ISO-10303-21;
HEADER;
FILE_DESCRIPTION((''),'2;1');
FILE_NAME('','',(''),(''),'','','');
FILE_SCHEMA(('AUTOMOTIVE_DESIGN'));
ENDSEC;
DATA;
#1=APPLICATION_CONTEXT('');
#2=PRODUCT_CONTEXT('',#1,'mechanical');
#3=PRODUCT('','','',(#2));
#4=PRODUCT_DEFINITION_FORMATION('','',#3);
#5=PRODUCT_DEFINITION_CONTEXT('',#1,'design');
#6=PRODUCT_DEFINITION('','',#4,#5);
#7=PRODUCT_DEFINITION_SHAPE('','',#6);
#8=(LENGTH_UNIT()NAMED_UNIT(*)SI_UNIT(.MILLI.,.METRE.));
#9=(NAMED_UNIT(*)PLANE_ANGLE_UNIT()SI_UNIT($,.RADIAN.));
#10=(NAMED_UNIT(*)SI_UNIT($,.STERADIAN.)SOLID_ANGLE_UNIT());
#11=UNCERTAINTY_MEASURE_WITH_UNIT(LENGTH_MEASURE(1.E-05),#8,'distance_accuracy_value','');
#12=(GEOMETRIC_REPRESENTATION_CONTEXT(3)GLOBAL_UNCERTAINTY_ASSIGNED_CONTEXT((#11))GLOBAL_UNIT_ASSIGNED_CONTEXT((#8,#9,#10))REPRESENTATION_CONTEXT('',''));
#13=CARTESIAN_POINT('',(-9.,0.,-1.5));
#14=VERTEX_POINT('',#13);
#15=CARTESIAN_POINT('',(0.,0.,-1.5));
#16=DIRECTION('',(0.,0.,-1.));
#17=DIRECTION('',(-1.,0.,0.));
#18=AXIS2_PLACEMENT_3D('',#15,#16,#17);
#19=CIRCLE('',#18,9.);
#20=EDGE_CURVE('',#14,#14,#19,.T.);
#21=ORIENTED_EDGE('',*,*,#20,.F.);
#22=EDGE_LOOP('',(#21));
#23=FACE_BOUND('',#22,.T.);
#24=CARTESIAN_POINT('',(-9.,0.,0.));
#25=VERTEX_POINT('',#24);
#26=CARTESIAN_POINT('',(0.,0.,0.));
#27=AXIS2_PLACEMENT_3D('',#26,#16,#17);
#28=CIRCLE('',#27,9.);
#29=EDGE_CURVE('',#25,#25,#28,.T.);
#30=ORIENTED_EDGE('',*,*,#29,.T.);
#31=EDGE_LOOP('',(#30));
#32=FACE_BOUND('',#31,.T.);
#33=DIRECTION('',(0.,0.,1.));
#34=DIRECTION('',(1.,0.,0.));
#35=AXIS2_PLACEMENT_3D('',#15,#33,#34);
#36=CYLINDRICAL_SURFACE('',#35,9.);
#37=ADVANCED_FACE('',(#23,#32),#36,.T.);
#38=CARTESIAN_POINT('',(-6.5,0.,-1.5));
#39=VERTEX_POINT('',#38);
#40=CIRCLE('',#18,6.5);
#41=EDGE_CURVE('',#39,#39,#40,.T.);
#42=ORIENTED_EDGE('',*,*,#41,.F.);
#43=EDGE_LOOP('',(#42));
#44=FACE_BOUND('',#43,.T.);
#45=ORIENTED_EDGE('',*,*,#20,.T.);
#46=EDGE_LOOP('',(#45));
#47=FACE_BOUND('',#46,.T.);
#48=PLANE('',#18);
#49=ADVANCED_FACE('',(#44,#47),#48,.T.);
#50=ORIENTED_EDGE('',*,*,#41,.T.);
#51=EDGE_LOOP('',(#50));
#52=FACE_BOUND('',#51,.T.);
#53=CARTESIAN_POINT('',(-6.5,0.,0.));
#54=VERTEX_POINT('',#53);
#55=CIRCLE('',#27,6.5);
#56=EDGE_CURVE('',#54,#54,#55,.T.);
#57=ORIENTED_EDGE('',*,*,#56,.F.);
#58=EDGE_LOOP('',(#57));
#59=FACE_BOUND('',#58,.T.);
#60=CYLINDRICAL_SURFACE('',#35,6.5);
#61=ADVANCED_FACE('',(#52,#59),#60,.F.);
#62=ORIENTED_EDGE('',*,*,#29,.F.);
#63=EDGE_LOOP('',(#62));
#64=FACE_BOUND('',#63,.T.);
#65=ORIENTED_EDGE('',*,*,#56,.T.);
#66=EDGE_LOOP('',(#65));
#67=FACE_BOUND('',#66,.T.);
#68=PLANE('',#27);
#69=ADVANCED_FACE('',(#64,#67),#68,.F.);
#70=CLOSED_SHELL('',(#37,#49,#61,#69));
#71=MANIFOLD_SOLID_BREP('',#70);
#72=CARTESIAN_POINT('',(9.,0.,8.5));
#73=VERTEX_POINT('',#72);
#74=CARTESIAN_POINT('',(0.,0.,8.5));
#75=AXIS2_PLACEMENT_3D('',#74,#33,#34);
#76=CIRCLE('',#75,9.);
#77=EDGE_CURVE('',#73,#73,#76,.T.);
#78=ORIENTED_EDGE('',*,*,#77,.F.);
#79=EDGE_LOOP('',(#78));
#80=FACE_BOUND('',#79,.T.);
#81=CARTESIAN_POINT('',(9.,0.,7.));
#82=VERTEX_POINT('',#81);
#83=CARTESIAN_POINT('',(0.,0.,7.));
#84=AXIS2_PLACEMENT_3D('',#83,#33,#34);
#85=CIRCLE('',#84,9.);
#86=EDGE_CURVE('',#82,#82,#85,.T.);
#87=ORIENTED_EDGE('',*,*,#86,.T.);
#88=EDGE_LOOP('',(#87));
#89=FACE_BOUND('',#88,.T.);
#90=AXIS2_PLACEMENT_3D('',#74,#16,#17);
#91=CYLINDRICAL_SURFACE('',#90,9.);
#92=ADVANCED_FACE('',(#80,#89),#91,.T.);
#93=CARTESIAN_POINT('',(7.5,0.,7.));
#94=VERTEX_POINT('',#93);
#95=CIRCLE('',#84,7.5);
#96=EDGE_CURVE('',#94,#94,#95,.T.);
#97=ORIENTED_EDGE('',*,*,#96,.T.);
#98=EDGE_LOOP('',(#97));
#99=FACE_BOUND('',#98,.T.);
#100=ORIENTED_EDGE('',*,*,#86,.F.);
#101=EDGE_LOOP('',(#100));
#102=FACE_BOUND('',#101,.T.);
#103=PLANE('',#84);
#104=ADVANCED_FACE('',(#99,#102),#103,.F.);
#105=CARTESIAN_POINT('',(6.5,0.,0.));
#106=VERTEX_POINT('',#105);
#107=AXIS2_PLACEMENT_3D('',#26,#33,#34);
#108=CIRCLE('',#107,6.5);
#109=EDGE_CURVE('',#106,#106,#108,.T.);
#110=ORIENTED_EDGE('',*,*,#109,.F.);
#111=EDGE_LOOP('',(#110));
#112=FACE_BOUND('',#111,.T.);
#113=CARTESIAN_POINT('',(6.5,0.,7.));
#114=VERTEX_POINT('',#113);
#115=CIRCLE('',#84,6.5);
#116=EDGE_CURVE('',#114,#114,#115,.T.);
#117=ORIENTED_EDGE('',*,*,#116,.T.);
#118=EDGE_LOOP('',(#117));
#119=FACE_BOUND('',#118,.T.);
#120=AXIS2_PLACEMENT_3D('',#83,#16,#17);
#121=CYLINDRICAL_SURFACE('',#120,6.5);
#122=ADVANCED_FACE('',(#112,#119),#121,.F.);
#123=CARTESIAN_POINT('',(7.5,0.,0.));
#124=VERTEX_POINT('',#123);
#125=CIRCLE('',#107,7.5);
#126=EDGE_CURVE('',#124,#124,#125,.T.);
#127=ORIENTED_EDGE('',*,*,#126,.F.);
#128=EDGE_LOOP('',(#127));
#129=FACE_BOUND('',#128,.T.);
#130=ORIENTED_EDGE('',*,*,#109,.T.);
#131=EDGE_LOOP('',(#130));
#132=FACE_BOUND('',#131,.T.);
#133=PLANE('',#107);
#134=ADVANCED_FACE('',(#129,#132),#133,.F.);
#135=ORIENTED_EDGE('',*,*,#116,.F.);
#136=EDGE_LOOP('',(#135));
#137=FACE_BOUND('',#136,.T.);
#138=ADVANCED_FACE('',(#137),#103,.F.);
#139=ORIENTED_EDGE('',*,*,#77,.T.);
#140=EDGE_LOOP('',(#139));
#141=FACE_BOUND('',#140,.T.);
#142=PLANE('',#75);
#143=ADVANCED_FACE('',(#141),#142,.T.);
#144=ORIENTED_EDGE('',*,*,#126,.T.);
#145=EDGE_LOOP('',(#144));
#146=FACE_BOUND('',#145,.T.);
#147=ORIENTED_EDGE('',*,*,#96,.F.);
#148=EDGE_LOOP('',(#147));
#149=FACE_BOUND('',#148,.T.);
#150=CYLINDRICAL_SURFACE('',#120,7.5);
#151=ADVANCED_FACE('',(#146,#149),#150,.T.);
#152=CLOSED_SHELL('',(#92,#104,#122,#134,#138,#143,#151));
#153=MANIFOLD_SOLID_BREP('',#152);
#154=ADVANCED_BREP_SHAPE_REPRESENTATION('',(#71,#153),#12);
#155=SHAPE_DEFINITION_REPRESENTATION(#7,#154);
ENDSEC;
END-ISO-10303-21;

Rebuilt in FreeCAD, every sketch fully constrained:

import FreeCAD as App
import Part
import Sketcher

V = App.Vector

doc = App.newDocument("Part")
body = doc.addObject("PartDesign::Body", "Body")

# Sketch on XY plane
sketch1 = body.newObject("Sketcher::SketchObject", "Sketch")
sketch1.AttachmentSupport = (doc.getObject("XY_Plane"), [""])
sketch1.MapMode = "FlatFace"
sketch1.addGeometry([
    Part.Circle(V(0, 0, 0), V(0, 0, 1), 8),
    Part.Circle(V(0, 0, 0), V(0, 0, 1), 6),
], False)
sketch1.addConstraint([
    Sketcher.Constraint("Coincident", 0, 3, -1, 1),
    Sketcher.Constraint("Coincident", 1, 3, -1, 1),
    Sketcher.Constraint("Diameter", 0, 15.0),
    Sketcher.Constraint("Diameter", 1, 13.0),
])
pad1 = body.newObject("PartDesign::Pad", "Pad")
pad1.Profile = sketch1
pad1.Length = 7

# Sketch on XY plane
sketch2 = body.newObject("Sketcher::SketchObject", "Sketch001")
sketch2.AttachmentSupport = (doc.getObject("XY_Plane"), [""])
sketch2.MapMode = "FlatFace"
sketch2.AttachmentOffset = App.Placement(V(0, 0, 7), App.Rotation())
sketch2.addGeometry(Part.Circle(V(0, 0, 0), V(0, 0, 1), 9), False)
sketch2.addConstraint([
    Sketcher.Constraint("Coincident", 0, 3, -1, 1),
    Sketcher.Constraint("Diameter", 0, 18.0),
])
pad2 = body.newObject("PartDesign::Pad", "Pad001")
pad2.Profile = sketch2
pad2.Length = 1.5
body2 = doc.addObject("PartDesign::Body", "Body001")

# Sketch on XY plane
sketch3 = body2.newObject("Sketcher::SketchObject", "Sketch002")
sketch3.AttachmentSupport = (doc.getObject("XY_Plane001"), [""])
sketch3.MapMode = "FlatFace"
sketch3.addGeometry([
    Part.Circle(V(0, 0, 0), V(0, 0, 1), 9),
    Part.Circle(V(0, 0, 0), V(0, 0, 1), 6),
], False)
sketch3.addConstraint([
    Sketcher.Constraint("Coincident", 0, 3, -1, 1),
    Sketcher.Constraint("Coincident", 1, 3, -1, 1),
    Sketcher.Constraint("Diameter", 0, 18.0),
    Sketcher.Constraint("Diameter", 1, 13.0),
])
pad3 = body2.newObject("PartDesign::Pad", "Pad002")
pad3.Profile = sketch3
pad3.Length = 1.5
pad3.Reversed = True

doc.recompute()
